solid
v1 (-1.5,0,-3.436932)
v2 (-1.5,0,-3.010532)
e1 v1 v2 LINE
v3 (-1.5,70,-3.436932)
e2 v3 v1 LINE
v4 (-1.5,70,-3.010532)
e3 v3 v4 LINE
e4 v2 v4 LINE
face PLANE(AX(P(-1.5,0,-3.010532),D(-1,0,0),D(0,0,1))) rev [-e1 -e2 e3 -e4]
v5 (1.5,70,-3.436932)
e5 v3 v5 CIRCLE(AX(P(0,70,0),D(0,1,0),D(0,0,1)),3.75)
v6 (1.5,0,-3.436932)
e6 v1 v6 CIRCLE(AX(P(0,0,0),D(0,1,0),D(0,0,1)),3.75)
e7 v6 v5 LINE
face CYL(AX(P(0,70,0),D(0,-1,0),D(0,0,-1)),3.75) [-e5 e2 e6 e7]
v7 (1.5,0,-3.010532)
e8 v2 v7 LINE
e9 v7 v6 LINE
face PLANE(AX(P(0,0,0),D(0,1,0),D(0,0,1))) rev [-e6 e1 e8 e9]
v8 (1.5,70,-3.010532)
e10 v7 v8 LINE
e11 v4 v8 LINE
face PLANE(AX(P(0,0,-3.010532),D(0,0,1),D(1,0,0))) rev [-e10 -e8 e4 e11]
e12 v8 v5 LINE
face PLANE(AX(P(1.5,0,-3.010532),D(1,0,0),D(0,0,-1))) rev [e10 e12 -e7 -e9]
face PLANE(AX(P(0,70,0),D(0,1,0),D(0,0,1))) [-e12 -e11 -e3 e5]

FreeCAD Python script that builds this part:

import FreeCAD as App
import Part
import Sketcher
from FreeCAD import Vector
Q = App.Units.Quantity

doc = App.newDocument("Part")
body = doc.addObject("PartDesign::Body", "Body")

sketch1 = body.newObject("Sketcher::SketchObject", "Sketch")
sketch1.AttachmentSupport = (doc.getObject("XZ_Plane"), [""])
sketch1.MapMode = "FlatFace"
sketch1.addGeometry(Part.Circle(Vector(0, 0, 0), Vector(0, 0, 1), 3.75), False)
sketch1.addConstraint([
    Sketcher.Constraint("Coincident", 0, 3, -1, 1),
    Sketcher.Constraint("Diameter", 0, Q("7.5 mm")),
])
pad1 = body.newObject("PartDesign::Pad", "Pad")
pad1.Profile = sketch1
pad1.Length = 70
pad1.Reversed = True

sketch2 = body.newObject("Sketcher::SketchObject", "Sketch001")
sketch2.AttachmentSupport = (doc.getObject("XZ_Plane"), [""])
sketch2.MapMode = "FlatFace"
sketch2.AttachmentOffset = App.Placement(Vector(0, 0, -70), App.Rotation())
sketch2.addGeometry([
    Part.LineSegment(Vector(-1.5, -3.010532, 0), Vector(1.5, -3.010532, 0)),
    Part.LineSegment(Vector(1.5, -3.010532, 0), Vector(1.5, -3.75, 0)),
    Part.LineSegment(Vector(1.5, -3.75, 0), Vector(-1.5, -3.75, 0)),
    Part.LineSegment(Vector(-1.5, -3.75, 0), Vector(-1.5, -3.010532, 0)),
], False)
sketch2.addConstraint([
    Sketcher.Constraint("Coincident", 0, 2, 1, 1),
    Sketcher.Constraint("Coincident", 1, 2, 2, 1),
    Sketcher.Constraint("Coincident", 2, 2, 3, 1),
    Sketcher.Constraint("Coincident", 3, 2, 0, 1),
    Sketcher.Constraint("Horizontal", 0),
    Sketcher.Constraint("Vertical", 1),
    Sketcher.Constraint("Horizontal", 2),
    Sketcher.Constraint("Vertical", 3),
    Sketcher.Constraint("DistanceX", 0, 1, 0, 2, Q("3 mm")),
    Sketcher.Constraint("DistanceX", -1, 1, 0, 2, Q("1.5 mm")),
    Sketcher.Constraint("DistanceY", 1, 2, -1, 1, Q("3.75 mm")),
    Sketcher.Constraint("DistanceY", 1, 2, 1, 1, Q("0.739468 mm")),
])
pocket1 = body.newObject("PartDesign::Pocket", "Pocket")
pocket1.Profile = sketch2
pocket1.Type = "ThroughAll"
pocket1.Reversed = True

doc.recompute()
